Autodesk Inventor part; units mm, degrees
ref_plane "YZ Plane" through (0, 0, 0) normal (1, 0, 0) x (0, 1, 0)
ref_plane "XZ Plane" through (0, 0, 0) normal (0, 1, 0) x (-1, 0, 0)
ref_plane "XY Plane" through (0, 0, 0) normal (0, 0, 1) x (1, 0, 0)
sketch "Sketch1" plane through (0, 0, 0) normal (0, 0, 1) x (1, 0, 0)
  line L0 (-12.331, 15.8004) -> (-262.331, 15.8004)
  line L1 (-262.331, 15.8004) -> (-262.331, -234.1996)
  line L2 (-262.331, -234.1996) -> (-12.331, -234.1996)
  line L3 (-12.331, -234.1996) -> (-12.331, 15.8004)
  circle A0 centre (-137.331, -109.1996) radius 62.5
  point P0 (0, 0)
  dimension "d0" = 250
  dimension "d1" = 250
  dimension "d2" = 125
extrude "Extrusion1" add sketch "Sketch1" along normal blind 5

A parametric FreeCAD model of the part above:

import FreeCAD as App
import Part
import Sketcher

V = App.Vector


def add_polygon(sketch, points):
    """Adds a closed chain of lines whose ends are joined by coincident constraints."""
    first, n = sketch.GeometryCount, len(points)
    for a, b in zip(points, points[1:] + points[:1]):
        sketch.addGeometry(Part.LineSegment(App.Vector(*a, 0), App.Vector(*b, 0)), False)
    for i in range(n):
        sketch.addConstraint(Sketcher.Constraint("Coincident", first + i, 2, first + (i + 1) % n, 1))

doc = App.newDocument("Part")
body = doc.addObject("PartDesign::Body", "Body")

# Sketch on XY plane
sketch1 = body.newObject("Sketcher::SketchObject", "Sketch")
sketch1.AttachmentSupport = (doc.getObject("XY_Plane"), [""])
sketch1.MapMode = "FlatFace"
add_polygon(sketch1, [(-12, -234), (-12, 16), (-262, 16), (-262, -234)])  # lines 0-3
sketch1.addGeometry(Part.Circle(V(-137, -109, 0), V(0, 0, 1), 62), False)  # 4
sketch1.addConstraint([
    Sketcher.Constraint("Vertical", 0),
    Sketcher.Constraint("Horizontal", 1),
    Sketcher.Constraint("Vertical", 2),
    Sketcher.Constraint("Horizontal", 3),
    Sketcher.Constraint("Equal", 3, 0),
    Sketcher.Constraint("Diameter", 4, 125.0),
    Sketcher.Constraint("DistanceX", 1, 2, 1, 1, 250.0),
    Sketcher.Constraint("DistanceX", 4, 3, 0, 2, 125.0),
    Sketcher.Constraint("DistanceY", 4, 3, 0, 2, 125.0),
    Sketcher.Constraint("DistanceX", 4, 3, -1, 1, 137.331),
    Sketcher.Constraint("DistanceY", 4, 3, -1, 1, 109.1996),
])
pad1 = body.newObject("PartDesign::Pad", "Pad")
pad1.Profile = sketch1
pad1.Length = 5

doc.recompute()
